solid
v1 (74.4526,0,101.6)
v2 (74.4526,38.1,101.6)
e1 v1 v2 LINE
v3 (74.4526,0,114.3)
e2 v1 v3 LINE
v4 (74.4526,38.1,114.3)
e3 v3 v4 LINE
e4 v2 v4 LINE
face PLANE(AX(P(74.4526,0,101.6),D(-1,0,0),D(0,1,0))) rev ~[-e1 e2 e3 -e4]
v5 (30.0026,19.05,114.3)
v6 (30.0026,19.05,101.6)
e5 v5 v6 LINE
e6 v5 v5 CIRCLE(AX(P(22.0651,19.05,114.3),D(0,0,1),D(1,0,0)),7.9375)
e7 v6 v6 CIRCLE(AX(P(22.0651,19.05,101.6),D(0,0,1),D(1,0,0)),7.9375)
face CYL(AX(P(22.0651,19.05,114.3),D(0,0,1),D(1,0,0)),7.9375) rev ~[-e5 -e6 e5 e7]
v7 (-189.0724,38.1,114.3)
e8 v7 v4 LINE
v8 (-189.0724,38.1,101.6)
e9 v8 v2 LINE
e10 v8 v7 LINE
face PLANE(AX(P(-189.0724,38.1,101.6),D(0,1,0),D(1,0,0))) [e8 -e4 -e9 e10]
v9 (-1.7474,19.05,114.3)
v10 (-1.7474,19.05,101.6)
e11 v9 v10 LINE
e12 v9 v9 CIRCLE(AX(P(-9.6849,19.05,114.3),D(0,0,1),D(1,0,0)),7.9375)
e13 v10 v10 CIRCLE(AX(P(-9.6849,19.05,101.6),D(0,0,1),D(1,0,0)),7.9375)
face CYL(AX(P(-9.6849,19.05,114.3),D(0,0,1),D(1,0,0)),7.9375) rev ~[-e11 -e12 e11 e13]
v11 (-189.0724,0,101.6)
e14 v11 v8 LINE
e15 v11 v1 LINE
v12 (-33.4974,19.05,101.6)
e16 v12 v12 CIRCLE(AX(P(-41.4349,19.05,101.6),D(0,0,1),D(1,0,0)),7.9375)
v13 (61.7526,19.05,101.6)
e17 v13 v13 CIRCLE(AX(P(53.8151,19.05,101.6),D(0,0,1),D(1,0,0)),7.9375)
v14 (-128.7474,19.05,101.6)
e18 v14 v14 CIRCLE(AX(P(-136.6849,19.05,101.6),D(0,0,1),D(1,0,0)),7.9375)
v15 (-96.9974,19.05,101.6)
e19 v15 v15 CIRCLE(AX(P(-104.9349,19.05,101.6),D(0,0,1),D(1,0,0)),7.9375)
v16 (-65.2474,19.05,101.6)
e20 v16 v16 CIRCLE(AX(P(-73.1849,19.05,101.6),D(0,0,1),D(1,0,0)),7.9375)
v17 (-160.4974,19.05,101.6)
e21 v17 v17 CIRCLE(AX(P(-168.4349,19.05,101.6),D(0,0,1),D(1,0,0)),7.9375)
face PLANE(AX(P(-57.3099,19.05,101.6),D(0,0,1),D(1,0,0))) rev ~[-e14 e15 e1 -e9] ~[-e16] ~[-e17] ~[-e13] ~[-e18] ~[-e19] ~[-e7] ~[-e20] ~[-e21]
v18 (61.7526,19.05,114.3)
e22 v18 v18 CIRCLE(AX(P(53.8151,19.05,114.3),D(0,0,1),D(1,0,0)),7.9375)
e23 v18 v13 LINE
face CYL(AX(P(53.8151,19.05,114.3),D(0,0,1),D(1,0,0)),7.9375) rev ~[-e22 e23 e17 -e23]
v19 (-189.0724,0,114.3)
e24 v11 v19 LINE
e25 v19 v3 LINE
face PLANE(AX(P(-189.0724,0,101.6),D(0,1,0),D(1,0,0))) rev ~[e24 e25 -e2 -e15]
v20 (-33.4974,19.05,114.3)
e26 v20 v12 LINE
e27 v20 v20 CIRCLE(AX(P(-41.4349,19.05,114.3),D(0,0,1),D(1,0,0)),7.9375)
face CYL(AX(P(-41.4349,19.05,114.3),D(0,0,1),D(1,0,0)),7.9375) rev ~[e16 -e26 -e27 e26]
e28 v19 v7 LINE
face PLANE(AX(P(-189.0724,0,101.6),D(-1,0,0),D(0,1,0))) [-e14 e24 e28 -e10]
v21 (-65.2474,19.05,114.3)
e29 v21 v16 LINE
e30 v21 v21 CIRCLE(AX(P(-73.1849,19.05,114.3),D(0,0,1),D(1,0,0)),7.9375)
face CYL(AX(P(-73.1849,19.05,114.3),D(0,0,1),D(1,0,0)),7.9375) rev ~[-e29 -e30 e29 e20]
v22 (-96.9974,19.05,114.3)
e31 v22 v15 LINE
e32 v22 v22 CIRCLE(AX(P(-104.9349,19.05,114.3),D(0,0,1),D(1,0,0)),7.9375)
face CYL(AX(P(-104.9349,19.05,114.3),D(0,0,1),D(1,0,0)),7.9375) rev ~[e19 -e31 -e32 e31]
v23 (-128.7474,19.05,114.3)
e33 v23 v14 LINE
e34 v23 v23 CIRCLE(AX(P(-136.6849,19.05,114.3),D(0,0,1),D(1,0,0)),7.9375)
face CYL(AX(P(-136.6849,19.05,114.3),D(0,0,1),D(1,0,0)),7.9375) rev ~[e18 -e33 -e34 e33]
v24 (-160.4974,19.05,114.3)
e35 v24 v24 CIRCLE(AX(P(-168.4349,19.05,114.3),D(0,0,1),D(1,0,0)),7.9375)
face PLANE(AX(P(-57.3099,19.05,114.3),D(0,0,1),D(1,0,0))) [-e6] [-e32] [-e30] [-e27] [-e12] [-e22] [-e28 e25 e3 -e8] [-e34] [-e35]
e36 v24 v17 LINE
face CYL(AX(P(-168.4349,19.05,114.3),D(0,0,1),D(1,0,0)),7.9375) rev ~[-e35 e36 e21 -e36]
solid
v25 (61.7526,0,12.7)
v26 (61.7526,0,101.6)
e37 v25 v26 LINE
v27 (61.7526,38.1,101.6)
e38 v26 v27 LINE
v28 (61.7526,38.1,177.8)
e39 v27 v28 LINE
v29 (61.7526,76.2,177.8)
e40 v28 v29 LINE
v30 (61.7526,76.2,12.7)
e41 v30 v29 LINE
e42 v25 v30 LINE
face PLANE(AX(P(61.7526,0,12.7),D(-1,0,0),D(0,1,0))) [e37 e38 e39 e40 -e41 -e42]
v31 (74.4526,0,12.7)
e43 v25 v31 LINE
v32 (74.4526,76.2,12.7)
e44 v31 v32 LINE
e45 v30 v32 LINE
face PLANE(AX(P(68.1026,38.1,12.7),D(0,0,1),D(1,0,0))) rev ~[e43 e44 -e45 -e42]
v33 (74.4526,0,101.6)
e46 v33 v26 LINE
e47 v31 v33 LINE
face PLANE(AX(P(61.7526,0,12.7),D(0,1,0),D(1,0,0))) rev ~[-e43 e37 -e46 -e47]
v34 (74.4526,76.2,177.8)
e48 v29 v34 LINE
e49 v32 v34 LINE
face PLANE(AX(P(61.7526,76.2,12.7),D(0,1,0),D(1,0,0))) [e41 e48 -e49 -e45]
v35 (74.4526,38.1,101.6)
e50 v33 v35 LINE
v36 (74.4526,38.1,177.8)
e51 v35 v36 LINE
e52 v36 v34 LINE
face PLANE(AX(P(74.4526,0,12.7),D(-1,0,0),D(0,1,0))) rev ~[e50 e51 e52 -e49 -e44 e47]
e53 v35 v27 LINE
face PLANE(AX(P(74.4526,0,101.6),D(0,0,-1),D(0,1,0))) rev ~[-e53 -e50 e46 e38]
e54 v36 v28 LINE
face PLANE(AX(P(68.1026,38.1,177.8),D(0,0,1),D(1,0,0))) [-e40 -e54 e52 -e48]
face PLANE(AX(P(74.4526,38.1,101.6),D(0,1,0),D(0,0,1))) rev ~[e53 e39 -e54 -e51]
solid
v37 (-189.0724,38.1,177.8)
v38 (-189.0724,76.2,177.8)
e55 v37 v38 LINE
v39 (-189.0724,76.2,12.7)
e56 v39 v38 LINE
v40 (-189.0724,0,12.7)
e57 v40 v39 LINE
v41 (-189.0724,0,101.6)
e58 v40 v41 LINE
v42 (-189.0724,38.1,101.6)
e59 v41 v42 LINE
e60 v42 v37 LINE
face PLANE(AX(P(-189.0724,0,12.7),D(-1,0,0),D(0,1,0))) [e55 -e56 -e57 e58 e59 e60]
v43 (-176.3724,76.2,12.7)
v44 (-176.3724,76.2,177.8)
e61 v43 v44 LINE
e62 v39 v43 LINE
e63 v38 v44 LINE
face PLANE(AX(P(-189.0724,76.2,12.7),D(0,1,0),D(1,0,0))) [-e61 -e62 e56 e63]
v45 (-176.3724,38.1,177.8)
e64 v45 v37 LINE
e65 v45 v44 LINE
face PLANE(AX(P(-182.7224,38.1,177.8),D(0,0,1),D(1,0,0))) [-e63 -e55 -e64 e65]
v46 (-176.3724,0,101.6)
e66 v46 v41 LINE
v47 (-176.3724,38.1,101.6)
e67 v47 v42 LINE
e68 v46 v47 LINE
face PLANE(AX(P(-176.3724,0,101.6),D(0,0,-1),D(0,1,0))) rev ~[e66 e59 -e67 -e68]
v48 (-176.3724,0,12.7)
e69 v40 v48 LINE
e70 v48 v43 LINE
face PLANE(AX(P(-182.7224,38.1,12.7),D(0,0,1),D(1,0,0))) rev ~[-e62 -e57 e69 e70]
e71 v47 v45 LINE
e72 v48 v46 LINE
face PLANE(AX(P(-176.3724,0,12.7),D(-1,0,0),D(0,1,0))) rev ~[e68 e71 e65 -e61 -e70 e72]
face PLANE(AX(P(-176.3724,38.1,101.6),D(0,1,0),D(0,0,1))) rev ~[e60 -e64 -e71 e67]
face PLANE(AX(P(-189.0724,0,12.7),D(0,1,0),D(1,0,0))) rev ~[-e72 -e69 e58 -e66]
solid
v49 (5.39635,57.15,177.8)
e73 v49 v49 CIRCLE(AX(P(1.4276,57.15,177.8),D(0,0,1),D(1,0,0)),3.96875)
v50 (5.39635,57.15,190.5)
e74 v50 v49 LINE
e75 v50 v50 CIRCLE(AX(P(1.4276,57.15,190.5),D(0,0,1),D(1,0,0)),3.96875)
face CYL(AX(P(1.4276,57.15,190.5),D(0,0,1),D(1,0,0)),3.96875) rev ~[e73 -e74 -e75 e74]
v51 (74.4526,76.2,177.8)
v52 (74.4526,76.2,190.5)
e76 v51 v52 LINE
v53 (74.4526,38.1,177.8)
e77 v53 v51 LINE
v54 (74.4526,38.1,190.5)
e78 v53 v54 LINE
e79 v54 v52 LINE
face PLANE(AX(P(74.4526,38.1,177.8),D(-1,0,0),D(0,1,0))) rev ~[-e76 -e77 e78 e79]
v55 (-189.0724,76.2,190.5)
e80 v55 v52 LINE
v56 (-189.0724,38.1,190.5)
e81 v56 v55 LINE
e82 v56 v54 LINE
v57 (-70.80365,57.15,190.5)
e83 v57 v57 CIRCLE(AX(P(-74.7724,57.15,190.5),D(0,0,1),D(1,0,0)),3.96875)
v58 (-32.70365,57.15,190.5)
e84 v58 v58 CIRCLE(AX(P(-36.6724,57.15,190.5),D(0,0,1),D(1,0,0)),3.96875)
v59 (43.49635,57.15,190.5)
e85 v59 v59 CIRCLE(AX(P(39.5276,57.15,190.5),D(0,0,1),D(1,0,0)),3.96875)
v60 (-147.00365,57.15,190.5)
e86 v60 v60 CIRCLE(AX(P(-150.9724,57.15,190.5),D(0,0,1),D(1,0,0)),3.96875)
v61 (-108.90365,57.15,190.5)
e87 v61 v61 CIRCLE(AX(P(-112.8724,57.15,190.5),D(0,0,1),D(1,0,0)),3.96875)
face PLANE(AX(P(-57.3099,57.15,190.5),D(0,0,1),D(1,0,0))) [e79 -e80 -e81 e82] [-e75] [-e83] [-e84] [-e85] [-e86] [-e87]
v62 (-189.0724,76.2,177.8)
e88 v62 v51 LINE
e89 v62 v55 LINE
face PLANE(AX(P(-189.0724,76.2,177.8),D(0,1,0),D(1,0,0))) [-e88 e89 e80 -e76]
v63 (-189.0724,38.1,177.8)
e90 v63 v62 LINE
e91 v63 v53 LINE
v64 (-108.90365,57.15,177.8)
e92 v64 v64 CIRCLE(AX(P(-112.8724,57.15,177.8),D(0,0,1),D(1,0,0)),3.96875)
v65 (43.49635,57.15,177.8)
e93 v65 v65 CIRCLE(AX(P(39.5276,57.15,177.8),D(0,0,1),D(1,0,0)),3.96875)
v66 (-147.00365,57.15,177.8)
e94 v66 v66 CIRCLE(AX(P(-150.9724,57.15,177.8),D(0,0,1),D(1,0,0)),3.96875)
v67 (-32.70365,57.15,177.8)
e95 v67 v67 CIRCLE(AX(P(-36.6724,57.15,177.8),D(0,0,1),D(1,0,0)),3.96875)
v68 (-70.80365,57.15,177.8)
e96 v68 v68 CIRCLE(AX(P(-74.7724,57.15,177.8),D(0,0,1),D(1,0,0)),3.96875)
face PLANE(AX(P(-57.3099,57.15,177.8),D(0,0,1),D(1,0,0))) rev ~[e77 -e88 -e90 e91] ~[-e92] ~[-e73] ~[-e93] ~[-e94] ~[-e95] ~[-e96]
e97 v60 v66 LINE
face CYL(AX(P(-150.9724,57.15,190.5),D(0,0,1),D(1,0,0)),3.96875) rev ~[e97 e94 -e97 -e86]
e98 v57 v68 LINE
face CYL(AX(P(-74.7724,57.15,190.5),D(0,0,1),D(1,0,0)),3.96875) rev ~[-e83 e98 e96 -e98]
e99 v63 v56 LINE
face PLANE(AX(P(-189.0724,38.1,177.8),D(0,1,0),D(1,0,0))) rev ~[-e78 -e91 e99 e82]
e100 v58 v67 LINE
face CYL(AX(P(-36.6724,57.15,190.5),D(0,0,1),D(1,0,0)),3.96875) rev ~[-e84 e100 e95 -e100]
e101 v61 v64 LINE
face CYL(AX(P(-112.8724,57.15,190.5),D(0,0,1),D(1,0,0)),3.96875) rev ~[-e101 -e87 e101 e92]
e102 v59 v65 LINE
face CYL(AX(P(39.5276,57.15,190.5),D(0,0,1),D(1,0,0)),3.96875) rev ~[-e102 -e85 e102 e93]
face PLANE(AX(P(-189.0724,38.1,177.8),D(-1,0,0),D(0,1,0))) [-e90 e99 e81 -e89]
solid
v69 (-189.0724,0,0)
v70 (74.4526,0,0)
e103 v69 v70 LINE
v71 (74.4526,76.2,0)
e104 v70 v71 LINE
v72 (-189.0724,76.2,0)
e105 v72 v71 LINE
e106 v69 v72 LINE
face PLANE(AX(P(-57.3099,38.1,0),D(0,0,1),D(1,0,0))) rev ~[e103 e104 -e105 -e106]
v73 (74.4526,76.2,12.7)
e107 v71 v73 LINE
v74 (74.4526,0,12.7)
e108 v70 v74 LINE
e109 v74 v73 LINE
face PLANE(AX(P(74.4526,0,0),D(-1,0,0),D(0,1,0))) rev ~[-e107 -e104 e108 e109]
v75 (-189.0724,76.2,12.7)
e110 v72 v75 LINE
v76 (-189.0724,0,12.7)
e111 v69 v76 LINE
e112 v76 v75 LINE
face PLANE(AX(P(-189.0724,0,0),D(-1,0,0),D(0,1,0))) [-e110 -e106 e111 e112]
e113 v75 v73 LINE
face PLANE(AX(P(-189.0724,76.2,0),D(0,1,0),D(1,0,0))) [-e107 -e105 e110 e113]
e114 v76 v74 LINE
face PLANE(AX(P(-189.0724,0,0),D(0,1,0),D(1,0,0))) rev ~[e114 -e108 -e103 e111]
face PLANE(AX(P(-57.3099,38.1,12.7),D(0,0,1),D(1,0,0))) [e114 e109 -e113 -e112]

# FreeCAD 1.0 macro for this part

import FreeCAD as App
import Part
import Sketcher
Q = App.Units.Quantity


def add_polygon(sketch, points):
    """Adds a closed chain of lines whose ends are joined by coincident constraints."""
    first, n = sketch.GeometryCount, len(points)
    for a, b in zip(points, points[1:] + points[:1]):
        sketch.addGeometry(Part.LineSegment(App.Vector(*a, 0), App.Vector(*b, 0)), False)
    for i in range(n):
        sketch.addConstraint(Sketcher.Constraint("Coincident", first + i, 2, first + (i + 1) % n, 1))

doc = App.newDocument("Part")
params = doc.addObject("Spreadsheet::Sheet", "Params")
for row, (alias, value) in enumerate([
    ("sketch1_height", "3 in"),
    ("sketch1_width", "10.375 in"),
    ("pad1_length", "0.5 in"),
    ("sketch2_height", "3 in"),
    ("sketch2_width", "0.5 in"),
    ("pad2_length", "6.5 in"),
    ("sketch3_height", "3 in"),
    ("sketch3_width", "1.5 in"),
    ("sketch4_height", "3 in"),
    ("sketch4_width", "0.5 in"),
    ("pad3_length", "6.5 in"),
    ("sketch5_height", "3 in"),
    ("sketch5_width", "1.5 in"),
    ("sketch6_height", "1.5 in"),
    ("sketch6_width", "10.375 in"),
    ("pad4_length", "0.5 in"),
    ("sketch7_diameter", "0.3125 in"),
    ("sketch8_height", "1.5 in"),
    ("sketch8_width", "10.375 in"),
    ("pad5_length", "0.5 in"),
    ("sketch9_diameter", "0.625 in"),
], start=1):
    params.set(f"A{row}", alias)
    params.set(f"B{row}", "=" + value)
    params.setAlias(f"B{row}", alias)

body = doc.addObject("PartDesign::Body", "Body")

# Sketch on XY plane
sketch1 = body.newObject("Sketcher::SketchObject", "Sketch")
sketch1.AttachmentSupport = (doc.getObject("XY_Plane"), [""])
sketch1.MapMode = "FlatFace"
add_polygon(sketch1, [(-189, 76), (-189, 0), (74, 0), (74, 76)])  # lines 0-3
sketch1.addConstraint([
    Sketcher.Constraint("Vertical", 0),
    Sketcher.Constraint("Horizontal", 1),
    Sketcher.Constraint("Vertical", 2),
    Sketcher.Constraint("Horizontal", 3),
    Sketcher.Constraint("PointOnObject", 0, 2, -1),
    Sketcher.Constraint("DistanceY", 0, 2, 0, 1, Q("3 in")),
    Sketcher.Constraint("DistanceX", 1, 1, 1, 2, Q("10.375 in")),
    Sketcher.Constraint("DistanceX", 0, 2, -1, 1, 189.0724),
])
sketch1.setExpression("Constraints[9]", "Params.sketch1_height")
sketch1.setExpression("Constraints[10]", "Params.sketch1_width")
pad1 = body.newObject("PartDesign::Pad", "Pad")
pad1.Profile = sketch1
pad1.setExpression("Length", "Params.pad1_length")
body2 = doc.addObject("PartDesign::Body", "Body001")

# Sketch on XY plane
sketch2 = body2.newObject("Sketcher::SketchObject", "Sketch001")
sketch2.AttachmentSupport = (doc.getObject("XY_Plane001"), [""])
sketch2.MapMode = "FlatFace"
sketch2.AttachmentOffset = App.Placement(App.Vector(0, 0, 0.5 * 25.4), App.Rotation())
add_polygon(sketch2, [(-189, 76), (-189, 0), (-176, 0), (-176, 76)])  # lines 0-3
sketch2.addConstraint([
    Sketcher.Constraint("Vertical", 0),
    Sketcher.Constraint("Horizontal", 1),
    Sketcher.Constraint("Vertical", 2),
    Sketcher.Constraint("Horizontal", 3),
    Sketcher.Constraint("PointOnObject", 0, 2, -1),
    Sketcher.Constraint("DistanceY", 0, 2, 0, 1, Q("3 in")),
    Sketcher.Constraint("DistanceX", 1, 1, 1, 2, Q("0.5 in")),
    Sketcher.Constraint("DistanceX", 0, 2, -1, 1, 189.0724),
])
sketch2.setExpression("Constraints[9]", "Params.sketch2_height")
sketch2.setExpression("Constraints[10]", "Params.sketch2_width")
pad2 = body2.newObject("PartDesign::Pad", "Pad001")
pad2.Profile = sketch2
pad2.setExpression("Length", "Params.pad2_length")

# Sketch on YZ plane
sketch3 = body2.newObject("Sketcher::SketchObject", "Sketch002")
sketch3.AttachmentSupport = (doc.getObject("YZ_Plane001"), [""])
sketch3.MapMode = "FlatFace"
sketch3.AttachmentOffset = App.Placement(App.Vector(0, 0, -176.3724), App.Rotation())
add_polygon(sketch3, [(0, 178), (0, 102), (38, 102), (38, 178)])  # lines 0-3
sketch3.addConstraint([
    Sketcher.Constraint("Vertical", 0),
    Sketcher.Constraint("Horizontal", 1),
    Sketcher.Constraint("Vertical", 2),
    Sketcher.Constraint("Horizontal", 3),
    Sketcher.Constraint("PointOnObject", 0, 2, -2),
    Sketcher.Constraint("DistanceY", 0, 2, 0, 1, Q("3 in")),
    Sketcher.Constraint("DistanceX", 1, 1, 1, 2, Q("1.5 in")),
    Sketcher.Constraint("DistanceY", -1, 1, 0, 2, Q("4 in")),
])
sketch3.setExpression("Constraints[9]", "Params.sketch3_height")
sketch3.setExpression("Constraints[10]", "Params.sketch3_width")
pocket1 = body2.newObject("PartDesign::Pocket", "Pocket")
pocket1.Profile = sketch3
pocket1.Type = "ThroughAll"
body3 = doc.addObject("PartDesign::Body", "Body002")

# Sketch on XY plane
sketch4 = body3.newObject("Sketcher::SketchObject", "Sketch003")
sketch4.AttachmentSupport = (doc.getObject("XY_Plane002"), [""])
sketch4.MapMode = "FlatFace"
sketch4.AttachmentOffset = App.Placement(App.Vector(0, 0, 0.5 * 25.4), App.Rotation())
add_polygon(sketch4, [(62, 76), (62, 0), (74, 0), (74, 76)])  # lines 0-3
sketch4.addConstraint([
    Sketcher.Constraint("Vertical", 0),
    Sketcher.Constraint("Horizontal", 1),
    Sketcher.Constraint("Vertical", 2),
    Sketcher.Constraint("Horizontal", 3),
    Sketcher.Constraint("PointOnObject", 0, 2, -1),
    Sketcher.Constraint("DistanceY", 0, 2, 0, 1, Q("3 in")),
    Sketcher.Constraint("DistanceX", 1, 1, 1, 2, Q("0.5 in")),
    Sketcher.Constraint("DistanceX", -1, 1, 0, 2, 61.7526),
])
sketch4.setExpression("Constraints[9]", "Params.sketch4_height")
sketch4.setExpression("Constraints[10]", "Params.sketch4_width")
pad3 = body3.newObject("PartDesign::Pad", "Pad002")
pad3.Profile = sketch4
pad3.setExpression("Length", "Params.pad3_length")

# Sketch on YZ plane
sketch5 = body3.newObject("Sketcher::SketchObject", "Sketch004")
sketch5.AttachmentSupport = (doc.getObject("YZ_Plane002"), [""])
sketch5.MapMode = "FlatFace"
sketch5.AttachmentOffset = App.Placement(App.Vector(0, 0, 74.4526), App.Rotation())
add_polygon(sketch5, [(0, 178), (0, 102), (38, 102), (38, 178)])  # lines 0-3
sketch5.addConstraint([
    Sketcher.Constraint("Vertical", 0),
    Sketcher.Constraint("Horizontal", 1),
    Sketcher.Constraint("Vertical", 2),
    Sketcher.Constraint("Horizontal", 3),
    Sketcher.Constraint("PointOnObject", 0, 2, -2),
    Sketcher.Constraint("DistanceY", 0, 2, 0, 1, Q("3 in")),
    Sketcher.Constraint("DistanceX", 1, 1, 1, 2, Q("1.5 in")),
    Sketcher.Constraint("DistanceY", -1, 1, 0, 2, Q("4 in")),
])
sketch5.setExpression("Constraints[9]", "Params.sketch5_height")
sketch5.setExpression("Constraints[10]", "Params.sketch5_width")
pocket2 = body3.newObject("PartDesign::Pocket", "Pocket001")
pocket2.Profile = sketch5
pocket2.Type = "ThroughAll"
body4 = doc.addObject("PartDesign::Body", "Body003")

# Sketch on XY plane
sketch6 = body4.newObject("Sketcher::SketchObject", "Sketch005")
sketch6.AttachmentSupport = (doc.getObject("XY_Plane003"), [""])
sketch6.MapMode = "FlatFace"
sketch6.AttachmentOffset = App.Placement(App.Vector(0, 0, 7 * 25.4), App.Rotation())
add_polygon(sketch6, [(-189, 76), (-189, 38), (74, 38), (74, 76)])  # lines 0-3
sketch6.addConstraint([
    Sketcher.Constraint("Vertical", 0),
    Sketcher.Constraint("Horizontal", 1),
    Sketcher.Constraint("Vertical", 2),
    Sketcher.Constraint("Horizontal", 3),
    Sketcher.Constraint("DistanceY", 0, 2, 0, 1, Q("1.5 in")),
    Sketcher.Constraint("DistanceY", -1, 1, 2, 2, Q("3 in")),
    Sketcher.Constraint("DistanceX", 1, 1, 1, 2, Q("10.375 in")),
    Sketcher.Constraint("DistanceX", 0, 2, -1, 1, 189.0724),
])
sketch6.setExpression("Constraints[8]", "Params.sketch6_height")
sketch6.setExpression("Constraints[10]", "Params.sketch6_width")
pad4 = body4.newObject("PartDesign::Pad", "Pad003")
pad4.Profile = sketch6
pad4.setExpression("Length", "Params.pad4_length")

# Sketch on XY plane
sketch7 = body4.newObject("Sketcher::SketchObject", "Sketch006")
sketch7.AttachmentSupport = (doc.getObject("XY_Plane003"), [""])
sketch7.MapMode = "FlatFace"
sketch7.AttachmentOffset = App.Placement(App.Vector(0, 0, 7.5 * 25.4), App.Rotation())
sketch7.addGeometry([
    Part.Circle(App.Vector(-151, 57.1, 0), App.Vector(0, 0, 1), 4),  # 0
    Part.Circle(App.Vector(1.4, 57.1, 0), App.Vector(0, 0, 1), 4),  # 1
    Part.Circle(App.Vector(-112.9, 57.1, 0), App.Vector(0, 0, 1), 4),  # 2
    Part.Circle(App.Vector(-74.8, 57.1, 0), App.Vector(0, 0, 1), 4),  # 3
    Part.Circle(App.Vector(-36.7, 57.1, 0), App.Vector(0, 0, 1), 4),  # 4
    Part.Circle(App.Vector(39.5, 57.1, 0), App.Vector(0, 0, 1), 4),  # 5
], False)
sketch7.addConstraint([
    Sketcher.Constraint("Equal", 0, 1),
    Sketcher.Constraint("Equal", 1, 2),
    Sketcher.Constraint("Equal", 2, 3),
    Sketcher.Constraint("Equal", 3, 4),
    Sketcher.Constraint("Equal", 4, 5),
    Sketcher.Constraint("Horizontal", 0, 3, 1, 3),
    Sketcher.Constraint("Horizontal", 1, 3, 2, 3),
    Sketcher.Constraint("Horizontal", 2, 3, 3, 3),
    Sketcher.Constraint("Horizontal", 3, 3, 4, 3),
    Sketcher.Constraint("Horizontal", 4, 3, 5, 3),
    Sketcher.Constraint("Diameter", 0, Q("0.3125 in")),
    Sketcher.Constraint("DistanceX", 0, 3, 1, 3, Q("6 in")),
    Sketcher.Constraint("DistanceX", 0, 3, 3, 3, Q("3 in")),
    Sketcher.Constraint("DistanceX", 2, 3, 4, 3, Q("3 in")),
    Sketcher.Constraint("DistanceX", 4, 3, 5, 3, Q("3 in")),
    Sketcher.Constraint("DistanceX", 0, 3, 2, 3, Q("1.5 in")),
    Sketcher.Constraint("DistanceY", -1, 1, 0, 3, Q("2.25 in")),
    Sketcher.Constraint("DistanceX", 0, 3, -1, 1, 150.9724),
])
sketch7.setExpression("Constraints[10]", "Params.sketch7_diameter")
pocket3 = body4.newObject("PartDesign::Pocket", "Pocket002")
pocket3.Profile = sketch7
pocket3.Type = "ThroughAll"
body5 = doc.addObject("PartDesign::Body", "Body004")

# Sketch on XY plane
sketch8 = body5.newObject("Sketcher::SketchObject", "Sketch007")
sketch8.AttachmentSupport = (doc.getObject("XY_Plane004"), [""])
sketch8.MapMode = "FlatFace"
sketch8.AttachmentOffset = App.Placement(App.Vector(0, 0, 4 * 25.4), App.Rotation())
add_polygon(sketch8, [(-189, 38), (-189, 0), (74, 0), (74, 38)])  # lines 0-3
sketch8.addConstraint([
    Sketcher.Constraint("Vertical", 0),
    Sketcher.Constraint("Horizontal", 1),
    Sketcher.Constraint("Vertical", 2),
    Sketcher.Constraint("Horizontal", 3),
    Sketcher.Constraint("PointOnObject", 0, 2, -1),
    Sketcher.Constraint("DistanceY", 0, 2, 0, 1, Q("1.5 in")),
    Sketcher.Constraint("DistanceX", 1, 1, 1, 2, Q("10.375 in")),
    Sketcher.Constraint("DistanceX", 0, 2, -1, 1, 189.0724),
])
sketch8.setExpression("Constraints[9]", "Params.sketch8_height")
sketch8.setExpression("Constraints[10]", "Params.sketch8_width")
pad5 = body5.newObject("PartDesign::Pad", "Pad004")
pad5.Profile = sketch8
pad5.setExpression("Length", "Params.pad5_length")

# Sketch on XY plane
sketch9 = body5.newObject("Sketcher::SketchObject", "Sketch008")
sketch9.AttachmentSupport = (doc.getObject("XY_Plane004"), [""])
sketch9.MapMode = "FlatFace"
sketch9.AttachmentOffset = App.Placement(App.Vector(0, 0, 4.5 * 25.4), App.Rotation())
sketch9.addGeometry([
    Part.Circle(App.Vector(-168, 19, 0), App.Vector(0, 0, 1), 8),  # 0
    Part.Circle(App.Vector(-137, 19, 0), App.Vector(0, 0, 1), 8),  # 1
    Part.Circle(App.Vector(-105, 19, 0), App.Vector(0, 0, 1), 8),  # 2
    Part.Circle(App.Vector(-73, 19, 0), App.Vector(0, 0, 1), 8),  # 3
    Part.Circle(App.Vector(-41, 19, 0), App.Vector(0, 0, 1), 8),  # 4
    Part.Circle(App.Vector(-10, 19, 0), App.Vector(0, 0, 1), 8),  # 5
    Part.Circle(App.Vector(22, 19, 0), App.Vector(0, 0, 1), 8),  # 6
    Part.Circle(App.Vector(54, 19, 0), App.Vector(0, 0, 1), 8),  # 7
], False)
sketch9.addConstraint([
    Sketcher.Constraint("Equal", 0, 1),
    Sketcher.Constraint("Equal", 1, 2),
    Sketcher.Constraint("Equal", 2, 3),
    Sketcher.Constraint("Equal", 3, 4),
    Sketcher.Constraint("Equal", 4, 5),
    Sketcher.Constraint("Equal", 5, 6),
    Sketcher.Constraint("Equal", 6, 7),
    Sketcher.Constraint("Horizontal", 0, 3, 1, 3),
    Sketcher.Constraint("Horizontal", 1, 3, 2, 3),
    Sketcher.Constraint("Horizontal", 2, 3, 3, 3),
    Sketcher.Constraint("Horizontal", 3, 3, 4, 3),
    Sketcher.Constraint("Horizontal", 4, 3, 5, 3),
    Sketcher.Constraint("Horizontal", 5, 3, 6, 3),
    Sketcher.Constraint("Horizontal", 6, 3, 7, 3),
    Sketcher.Constraint("Diameter", 0, Q("0.625 in")),
    Sketcher.Constraint("DistanceX", 0, 3, 4, 3, Q("5 in")),
    Sketcher.Constraint("DistanceX", 1, 3, 5, 3, Q("5 in")),
    Sketcher.Constraint("DistanceX", 2, 3, 6, 3, Q("5 in")),
    Sketcher.Constraint("DistanceX", 3, 3, 7, 3, Q("5 in")),
    Sketcher.Constraint("DistanceX", 0, 3, 2, 3, Q("2.5 in")),
    Sketcher.Constraint("DistanceX", 1, 3, 3, 3, Q("2.5 in")),
    Sketcher.Constraint("DistanceY", -1, 1, 0, 3, Q("0.75 in")),
    Sketcher.Constraint("DistanceX", 0, 3, 1, 3, Q("1.25 in")),
    Sketcher.Constraint("DistanceX", 0, 3, -1, 1, 168.4349),
])
sketch9.setExpression("Constraints[14]", "Params.sketch9_diameter")
pocket4 = body5.newObject("PartDesign::Pocket", "Pocket003")
pocket4.Profile = sketch9
pocket4.Type = "ThroughAll"

doc.recompute()
